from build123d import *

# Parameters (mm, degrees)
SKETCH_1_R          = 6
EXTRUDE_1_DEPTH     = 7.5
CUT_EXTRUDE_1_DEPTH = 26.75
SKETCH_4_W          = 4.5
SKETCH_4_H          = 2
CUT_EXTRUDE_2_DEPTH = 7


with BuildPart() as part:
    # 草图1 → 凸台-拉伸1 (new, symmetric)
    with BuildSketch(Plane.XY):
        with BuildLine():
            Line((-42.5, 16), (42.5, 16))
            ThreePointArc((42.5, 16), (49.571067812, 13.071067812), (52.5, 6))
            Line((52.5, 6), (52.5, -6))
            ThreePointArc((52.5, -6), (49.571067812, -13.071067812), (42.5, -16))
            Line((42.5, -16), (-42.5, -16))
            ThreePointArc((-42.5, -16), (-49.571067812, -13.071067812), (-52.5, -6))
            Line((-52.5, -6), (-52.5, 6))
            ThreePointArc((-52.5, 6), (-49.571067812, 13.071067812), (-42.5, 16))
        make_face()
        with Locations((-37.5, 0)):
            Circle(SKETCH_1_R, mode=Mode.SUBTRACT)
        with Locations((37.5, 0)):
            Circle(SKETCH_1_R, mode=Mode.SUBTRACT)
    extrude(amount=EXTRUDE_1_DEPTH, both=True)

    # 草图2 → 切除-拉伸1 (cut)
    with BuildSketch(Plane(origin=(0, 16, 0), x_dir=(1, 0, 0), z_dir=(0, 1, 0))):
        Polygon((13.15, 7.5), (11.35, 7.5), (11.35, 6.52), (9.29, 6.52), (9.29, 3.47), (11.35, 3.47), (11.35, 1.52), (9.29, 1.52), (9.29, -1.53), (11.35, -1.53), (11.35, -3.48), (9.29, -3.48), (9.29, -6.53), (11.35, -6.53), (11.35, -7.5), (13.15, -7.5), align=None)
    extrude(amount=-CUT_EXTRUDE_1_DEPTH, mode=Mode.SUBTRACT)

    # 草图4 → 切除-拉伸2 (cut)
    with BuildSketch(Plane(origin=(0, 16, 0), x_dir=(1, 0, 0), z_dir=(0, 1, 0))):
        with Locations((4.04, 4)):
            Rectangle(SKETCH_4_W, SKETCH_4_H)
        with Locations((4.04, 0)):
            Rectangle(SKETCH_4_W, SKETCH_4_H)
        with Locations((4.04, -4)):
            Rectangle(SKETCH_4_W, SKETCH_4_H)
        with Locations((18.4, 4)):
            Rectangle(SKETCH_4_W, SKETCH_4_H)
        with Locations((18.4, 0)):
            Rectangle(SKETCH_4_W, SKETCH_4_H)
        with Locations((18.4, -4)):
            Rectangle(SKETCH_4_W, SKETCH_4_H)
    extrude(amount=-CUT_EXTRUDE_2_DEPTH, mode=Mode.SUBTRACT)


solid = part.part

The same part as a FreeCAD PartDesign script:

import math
import FreeCAD as App
import Part
import Sketcher
from FreeCAD import Vector

doc = App.newDocument("Part")
body = doc.addObject("PartDesign::Body", "Body")

sketch1 = body.newObject("Sketcher::SketchObject", "Sketch")
sketch1.AttachmentSupport = (doc.getObject("XY_Plane"), [""])
sketch1.MapMode = "FlatFace"
sketch1.addGeometry(Part.LineSegment(Vector(42, 16, 0), Vector(-42, 16, 0)), False)
sketch1.addGeometry(Part.ArcOfCircle(Part.Circle(Vector(-42, 6, 0), Vector(0, 0, 1), 10), math.radians(90), math.radians(180)), False)
sketch1.addGeometry(Part.LineSegment(Vector(-52, 6, 0), Vector(-52, -6, 0)), False)
sketch1.addGeometry(Part.ArcOfCircle(Part.Circle(Vector(-42, -6, 0), Vector(0, 0, 1), 10), math.radians(180), math.radians(270)), False)
sketch1.addGeometry(Part.LineSegment(Vector(-42, -16, 0), Vector(42, -16, 0)), False)
sketch1.addGeometry(Part.ArcOfCircle(Part.Circle(Vector(42, -6, 0), Vector(0, 0, 1), 10), math.radians(-90), math.radians(0)), False)
sketch1.addGeometry(Part.LineSegment(Vector(52, -6, 0), Vector(52, 6, 0)), False)
sketch1.addGeometry(Part.ArcOfCircle(Part.Circle(Vector(42, 6, 0), Vector(0, 0, 1), 10), math.radians(0), math.radians(90)), False)
sketch1.addGeometry(Part.Circle(Vector(38, 0, 0), Vector(0, 0, 1), 6), False)
sketch1.addGeometry(Part.Circle(Vector(-38, 0, 0), Vector(0, 0, 1), 6), False)
sketch1.addConstraint(Sketcher.Constraint("Tangent", 0, 2, 1, 1))
sketch1.addConstraint(Sketcher.Constraint("Tangent", 1, 2, 2, 1))
sketch1.addConstraint(Sketcher.Constraint("Tangent", 2, 2, 3, 1))
sketch1.addConstraint(Sketcher.Constraint("Tangent", 3, 2, 4, 1))
sketch1.addConstraint(Sketcher.Constraint("Tangent", 4, 2, 5, 1))
sketch1.addConstraint(Sketcher.Constraint("Tangent", 5, 2, 6, 1))
sketch1.addConstraint(Sketcher.Constraint("Tangent", 6, 2, 7, 1))
sketch1.addConstraint(Sketcher.Constraint("Tangent", 7, 2, 0, 1))
sketch1.addConstraint(Sketcher.Constraint("Horizontal", 0))
sketch1.addConstraint(Sketcher.Constraint("Vertical", 2))
sketch1.addConstraint(Sketcher.Constraint("Horizontal", 4))
sketch1.addConstraint(Sketcher.Constraint("Vertical", 6))
sketch1.addConstraint(Sketcher.Constraint("Equal", 1, 3))
sketch1.addConstraint(Sketcher.Constraint("Equal", 3, 5))
sketch1.addConstraint(Sketcher.Constraint("Equal", 5, 7))
sketch1.addConstraint(Sketcher.Constraint("Equal", 8, 9))
sketch1.addConstraint(Sketcher.Constraint("Symmetric", 1, 3, 5, 3, -1, 1))
sketch1.addConstraint(Sketcher.Constraint("Symmetric", 8, 3, 9, 3, -1, 1))
sketch1.addConstraint(Sketcher.Constraint("PointOnObject", 8, 3, -1))
sketch1.addConstraint(Sketcher.Constraint("Diameter", 8, 12.0))
sketch1.addConstraint(Sketcher.Constraint("Radius", 1, 10.0))
sketch1.addConstraint(Sketcher.Constraint("DistanceX", 0, 2, 0, 1, 85.0))
sketch1.addConstraint(Sketcher.Constraint("DistanceY", 2, 2, 2, 1, 12.0))
sketch1.addConstraint(Sketcher.Constraint("DistanceX", 8, 3, 5, 3, 5.0))
pad1 = body.newObject("PartDesign::Pad", "Pad")
pad1.Profile = sketch1
pad1.Length = 15
pad1.Midplane = True

sketch2 = body.newObject("Sketcher::SketchObject", "Sketch001")
sketch2.AttachmentSupport = (doc.getObject("XZ_Plane"), [""])
sketch2.MapMode = "FlatFace"
sketch2.AttachmentOffset = App.Placement(Vector(0, 0, -16), App.Rotation())
sketch2.addGeometry(Part.LineSegment(Vector(13.2, -7.5, 0), Vector(11.3, -7.5, 0)), False)
sketch2.addGeometry(Part.LineSegment(Vector(11.3, -7.5, 0), Vector(11.3, -6.5, 0)), False)
sketch2.addGeometry(Part.LineSegment(Vector(11.3, -6.5, 0), Vector(9.3, -6.5, 0)), False)
sketch2.addGeometry(Part.LineSegment(Vector(9.3, -6.5, 0), Vector(9.3, -3.5, 0)), False)
sketch2.addGeometry(Part.LineSegment(Vector(9.3, -3.5, 0), Vector(11.3, -3.5, 0)), False)
sketch2.addGeometry(Part.LineSegment(Vector(11.3, -3.5, 0), Vector(11.3, -1.5, 0)), False)
sketch2.addGeometry(Part.LineSegment(Vector(11.3, -1.5, 0), Vector(9.3, -1.5, 0)), False)
sketch2.addGeometry(Part.LineSegment(Vector(9.3, -1.5, 0), Vector(9.3, 1.5, 0)), False)
sketch2.addGeometry(Part.LineSegment(Vector(9.3, 1.5, 0), Vector(11.3, 1.5, 0)), False)
sketch2.addGeometry(Part.LineSegment(Vector(11.3, 1.5, 0), Vector(11.3, 3.5, 0)), False)
sketch2.addGeometry(Part.LineSegment(Vector(11.3, 3.5, 0), Vector(9.3, 3.5, 0)), False)
sketch2.addGeometry(Part.LineSegment(Vector(9.3, 3.5, 0), Vector(9.3, 6.5, 0)), False)
sketch2.addGeometry(Part.LineSegment(Vector(9.3, 6.5, 0), Vector(11.3, 6.5, 0)), False)
sketch2.addGeometry(Part.LineSegment(Vector(11.3, 6.5, 0), Vector(11.3, 7.5, 0)), False)
sketch2.addGeometry(Part.LineSegment(Vector(11.3, 7.5, 0), Vector(13.2, 7.5, 0)), False)
sketch2.addGeometry(Part.LineSegment(Vector(13.2, 7.5, 0), Vector(13.2, -7.5, 0)), False)
sketch2.addConstraint(Sketcher.Constraint("Coincident", 0, 2, 1, 1))
sketch2.addConstraint(Sketcher.Constraint("Coincident", 1, 2, 2, 1))
sketch2.addConstraint(Sketcher.Constraint("Coincident", 2, 2, 3, 1))
sketch2.addConstraint(Sketcher.Constraint("Coincident", 3, 2, 4, 1))
sketch2.addConstraint(Sketcher.Constraint("Coincident", 4, 2, 5, 1))
sketch2.addConstraint(Sketcher.Constraint("Coincident", 5, 2, 6, 1))
sketch2.addConstraint(Sketcher.Constraint("Coincident", 6, 2, 7, 1))
sketch2.addConstraint(Sketcher.Constraint("Coincident", 7, 2, 8, 1))
sketch2.addConstraint(Sketcher.Constraint("Coincident", 8, 2, 9, 1))
sketch2.addConstraint(Sketcher.Constraint("Coincident", 9, 2, 10, 1))
sketch2.addConstraint(Sketcher.Constraint("Coincident", 10, 2, 11, 1))
sketch2.addConstraint(Sketcher.Constraint("Coincident", 11, 2, 12, 1))
sketch2.addConstraint(Sketcher.Constraint("Coincident", 12, 2, 13, 1))
sketch2.addConstraint(Sketcher.Constraint("Coincident", 13, 2, 14, 1))
sketch2.addConstraint(Sketcher.Constraint("Coincident", 14, 2, 15, 1))
sketch2.addConstraint(Sketcher.Constraint("Coincident", 15, 2, 0, 1))
sketch2.addConstraint(Sketcher.Constraint("Horizontal", 0))
sketch2.addConstraint(Sketcher.Constraint("Vertical", 1))
sketch2.addConstraint(Sketcher.Constraint("Horizontal", 2))
sketch2.addConstraint(Sketcher.Constraint("Vertical", 3))
sketch2.addConstraint(Sketcher.Constraint("Horizontal", 4))
sketch2.addConstraint(Sketcher.Constraint("Vertical", 5))
sketch2.addConstraint(Sketcher.Constraint("Horizontal", 6))
sketch2.addConstraint(Sketcher.Constraint("Vertical", 7))
sketch2.addConstraint(Sketcher.Constraint("Horizontal", 8))
sketch2.addConstraint(Sketcher.Constraint("Vertical", 9))
sketch2.addConstraint(Sketcher.Constraint("Horizontal", 10))
sketch2.addConstraint(Sketcher.Constraint("Vertical", 11))
sketch2.addConstraint(Sketcher.Constraint("Horizontal", 12))
sketch2.addConstraint(Sketcher.Constraint("Vertical", 13))
sketch2.addConstraint(Sketcher.Constraint("Horizontal", 14))
sketch2.addConstraint(Sketcher.Constraint("Vertical", 15))
sketch2.addConstraint(Sketcher.Constraint("Symmetric", 0, 2, 13, 2, -1))
sketch2.addConstraint(Sketcher.Constraint("Vertical", 1, 2, 4, 2))
sketch2.addConstraint(Sketcher.Constraint("Vertical", 3, 2, 6, 2))
sketch2.addConstraint(Sketcher.Constraint("Vertical", 5, 2, 8, 2))
sketch2.addConstraint(Sketcher.Constraint("Vertical", 7, 2, 10, 2))
sketch2.addConstraint(Sketcher.Constraint("Equal", 3, 7))
sketch2.addConstraint(Sketcher.Constraint("Equal", 5, 9))
sketch2.addConstraint(Sketcher.Constraint("Equal", 7, 11))
sketch2.addConstraint(Sketcher.Constraint("DistanceY", 15, 2, 15, 1, 15.0))
sketch2.addConstraint(Sketcher.Constraint("DistanceX", 0, 2, 0, 1, 1.8))
sketch2.addConstraint(Sketcher.Constraint("DistanceY", 1, 2, 5, 2, 5.0))
sketch2.addConstraint(Sketcher.Constraint("DistanceX", 2, 2, 2, 1, 2.06))
sketch2.addConstraint(Sketcher.Constraint("DistanceY", 1, 1, 1, 2, 0.98))
sketch2.addConstraint(Sketcher.Constraint("DistanceY", 3, 1, 3, 2, 3.05))
sketch2.addConstraint(Sketcher.Constraint("DistanceX", -1, 1, 0, 2, 11.35))
pocket1 = body.newObject("PartDesign::Pocket", "Pocket")
pocket1.Profile = sketch2
pocket1.Length = 26.75
pocket1.Reversed = True

sketch3 = body.newObject("Sketcher::SketchObject", "Sketch002")
sketch3.AttachmentSupport = (doc.getObject("XZ_Plane"), [""])
sketch3.MapMode = "FlatFace"
sketch3.AttachmentOffset = App.Placement(Vector(0, 0, -16), App.Rotation())
sketch3.addGeometry(Part.LineSegment(Vector(1.8, -5, 0), Vector(1.8, -3, 0)), False)
sketch3.addGeometry(Part.LineSegment(Vector(1.8, -3, 0), Vector(6.3, -3, 0)), False)
sketch3.addGeometry(Part.LineSegment(Vector(6.3, -3, 0), Vector(6.3, -5, 0)), False)
sketch3.addGeometry(Part.LineSegment(Vector(6.3, -5, 0), Vector(1.8, -5, 0)), False)
sketch3.addGeometry(Part.LineSegment(Vector(1.8, -1, 0), Vector(1.8, 1, 0)), False)
sketch3.addGeometry(Part.LineSegment(Vector(1.8, 1, 0), Vector(6.3, 1, 0)), False)
sketch3.addGeometry(Part.LineSegment(Vector(6.3, 1, 0), Vector(6.3, -1, 0)), False)
sketch3.addGeometry(Part.LineSegment(Vector(6.3, -1, 0), Vector(1.8, -1, 0)), False)
sketch3.addGeometry(Part.LineSegment(Vector(1.8, 3, 0), Vector(1.8, 5, 0)), False)
sketch3.addGeometry(Part.LineSegment(Vector(1.8, 5, 0), Vector(6.3, 5, 0)), False)
sketch3.addGeometry(Part.LineSegment(Vector(6.3, 5, 0), Vector(6.3, 3, 0)), False)
sketch3.addGeometry(Part.LineSegment(Vector(6.3, 3, 0), Vector(1.8, 3, 0)), False)
sketch3.addGeometry(Part.LineSegment(Vector(16.1, -5, 0), Vector(16.1, -3, 0)), False)
sketch3.addGeometry(Part.LineSegment(Vector(16.1, -3, 0), Vector(20.6, -3, 0)), False)
sketch3.addGeometry(Part.LineSegment(Vector(20.6, -3, 0), Vector(20.6, -5, 0)), False)
sketch3.addGeometry(Part.LineSegment(Vector(20.6, -5, 0), Vector(16.1, -5, 0)), False)
sketch3.addGeometry(Part.LineSegment(Vector(16.1, -1, 0), Vector(16.1, 1, 0)), False)
sketch3.addGeometry(Part.LineSegment(Vector(16.1, 1, 0), Vector(20.6, 1, 0)), False)
sketch3.addGeometry(Part.LineSegment(Vector(20.6, 1, 0), Vector(20.6, -1, 0)), False)
sketch3.addGeometry(Part.LineSegment(Vector(20.6, -1, 0), Vector(16.1, -1, 0)), False)
sketch3.addGeometry(Part.LineSegment(Vector(16.1, 3, 0), Vector(16.1, 5, 0)), False)
sketch3.addGeometry(Part.LineSegment(Vector(16.1, 5, 0), Vector(20.6, 5, 0)), False)
sketch3.addGeometry(Part.LineSegment(Vector(20.6, 5, 0), Vector(20.6, 3, 0)), False)
sketch3.addGeometry(Part.LineSegment(Vector(20.6, 3, 0), Vector(16.1, 3, 0)), False)
sketch3.addConstraint(Sketcher.Constraint("Coincident", 0, 2, 1, 1))
sketch3.addConstraint(Sketcher.Constraint("Coincident", 1, 2, 2, 1))
sketch3.addConstraint(Sketcher.Constraint("Coincident", 2, 2, 3, 1))
sketch3.addConstraint(Sketcher.Constraint("Coincident", 3, 2, 0, 1))
sketch3.addConstraint(Sketcher.Constraint("Coincident", 4, 2, 5, 1))
sketch3.addConstraint(Sketcher.Constraint("Coincident", 5, 2, 6, 1))
sketch3.addConstraint(Sketcher.Constraint("Coincident", 6, 2, 7, 1))
sketch3.addConstraint(Sketcher.Constraint("Coincident", 7, 2, 4, 1))
sketch3.addConstraint(Sketcher.Constraint("Coincident", 8, 2, 9, 1))
sketch3.addConstraint(Sketcher.Constraint("Coincident", 9, 2, 10, 1))
sketch3.addConstraint(Sketcher.Constraint("Coincident", 10, 2, 11, 1))
sketch3.addConstraint(Sketcher.Constraint("Coincident", 11, 2, 8, 1))
sketch3.addConstraint(Sketcher.Constraint("Coincident", 12, 2, 13, 1))
sketch3.addConstraint(Sketcher.Constraint("Coincident", 13, 2, 14, 1))
sketch3.addConstraint(Sketcher.Constraint("Coincident", 14, 2, 15, 1))
sketch3.addConstraint(Sketcher.Constraint("Coincident", 15, 2, 12, 1))
sketch3.addConstraint(Sketcher.Constraint("Coincident", 16, 2, 17, 1))
sketch3.addConstraint(Sketcher.Constraint("Coincident", 17, 2, 18, 1))
sketch3.addConstraint(Sketcher.Constraint("Coincident", 18, 2, 19, 1))
sketch3.addConstraint(Sketcher.Constraint("Coincident", 19, 2, 16, 1))
sketch3.addConstraint(Sketcher.Constraint("Coincident", 20, 2, 21, 1))
sketch3.addConstraint(Sketcher.Constraint("Coincident", 21, 2, 22, 1))
sketch3.addConstraint(Sketcher.Constraint("Coincident", 22, 2, 23, 1))
sketch3.addConstraint(Sketcher.Constraint("Coincident", 23, 2, 20, 1))
sketch3.addConstraint(Sketcher.Constraint("Vertical", 0))
sketch3.addConstraint(Sketcher.Constraint("Horizontal", 1))
sketch3.addConstraint(Sketcher.Constraint("Vertical", 2))
sketch3.addConstraint(Sketcher.Constraint("Horizontal", 3))
sketch3.addConstraint(Sketcher.Constraint("Vertical", 4))
sketch3.addConstraint(Sketcher.Constraint("Horizontal", 5))
sketch3.addConstraint(Sketcher.Constraint("Vertical", 6))
sketch3.addConstraint(Sketcher.Constraint("Horizontal", 7))
sketch3.addConstraint(Sketcher.Constraint("Vertical", 8))
sketch3.addConstraint(Sketcher.Constraint("Horizontal", 9))
sketch3.addConstraint(Sketcher.Constraint("Vertical", 10))
sketch3.addConstraint(Sketcher.Constraint("Horizontal", 11))
sketch3.addConstraint(Sketcher.Constraint("Vertical", 12))
sketch3.addConstraint(Sketcher.Constraint("Horizontal", 13))
sketch3.addConstraint(Sketcher.Constraint("Vertical", 14))
sketch3.addConstraint(Sketcher.Constraint("Horizontal", 15))
sketch3.addConstraint(Sketcher.Constraint("Vertical", 16))
sketch3.addConstraint(Sketcher.Constraint("Horizontal", 17))
sketch3.addConstraint(Sketcher.Constraint("Vertical", 18))
sketch3.addConstraint(Sketcher.Constraint("Horizontal", 19))
sketch3.addConstraint(Sketcher.Constraint("Vertical", 20))
sketch3.addConstraint(Sketcher.Constraint("Horizontal", 21))
sketch3.addConstraint(Sketcher.Constraint("Vertical", 22))
sketch3.addConstraint(Sketcher.Constraint("Horizontal", 23))
sketch3.addConstraint(Sketcher.Constraint("Symmetric", 3, 2, 8, 2, -1))
sketch3.addConstraint(Sketcher.Constraint("Symmetric", 1, 2, 10, 2, -1))
sketch3.addConstraint(Sketcher.Constraint("Symmetric", 15, 2, 20, 2, -1))
sketch3.addConstraint(Sketcher.Constraint("Symmetric", 13, 2, 22, 2, -1))
sketch3.addConstraint(Sketcher.Constraint("Horizontal", 1, 2, 12, 2))
sketch3.addConstraint(Sketcher.Constraint("Horizontal", 3, 2, 14, 2))
sketch3.addConstraint(Sketcher.Constraint("Horizontal", 5, 2, 16, 2))
sketch3.addConstraint(Sketcher.Constraint("Horizontal", 7, 2, 18, 2))
sketch3.addConstraint(Sketcher.Constraint("Vertical", 3, 2, 4, 2))
sketch3.addConstraint(Sketcher.Constraint("Vertical", 2, 2, 5, 2))
sketch3.addConstraint(Sketcher.Constraint("Vertical", 15, 2, 16, 2))
sketch3.addConstraint(Sketcher.Constraint("Vertical", 14, 2, 17, 2))
sketch3.addConstraint(Sketcher.Constraint("Equal", 11, 13))
sketch3.addConstraint(Sketcher.Constraint("Equal", 2, 4))
sketch3.addConstraint(Sketcher.Constraint("DistanceY", 0, 1, 0, 2, 2.0))
sketch3.addConstraint(Sketcher.Constraint("DistanceX", 1, 1, 1, 2, 4.5))
sketch3.addConstraint(Sketcher.Constraint("DistanceY", 0, 2, -1, 1, 3.0))
sketch3.addConstraint(Sketcher.Constraint("DistanceY", -1, 1, 4, 2, 1.0))
sketch3.addConstraint(Sketcher.Constraint("DistanceX", -1, 1, 0, 2, 1.79))
sketch3.addConstraint(Sketcher.Constraint("DistanceX", -1, 1, 12, 2, 16.15))
pocket2 = body.newObject("PartDesign::Pocket", "Pocket001")
pocket2.Profile = sketch3
pocket2.Length = 7
pocket2.Reversed = True

doc.recompute()
